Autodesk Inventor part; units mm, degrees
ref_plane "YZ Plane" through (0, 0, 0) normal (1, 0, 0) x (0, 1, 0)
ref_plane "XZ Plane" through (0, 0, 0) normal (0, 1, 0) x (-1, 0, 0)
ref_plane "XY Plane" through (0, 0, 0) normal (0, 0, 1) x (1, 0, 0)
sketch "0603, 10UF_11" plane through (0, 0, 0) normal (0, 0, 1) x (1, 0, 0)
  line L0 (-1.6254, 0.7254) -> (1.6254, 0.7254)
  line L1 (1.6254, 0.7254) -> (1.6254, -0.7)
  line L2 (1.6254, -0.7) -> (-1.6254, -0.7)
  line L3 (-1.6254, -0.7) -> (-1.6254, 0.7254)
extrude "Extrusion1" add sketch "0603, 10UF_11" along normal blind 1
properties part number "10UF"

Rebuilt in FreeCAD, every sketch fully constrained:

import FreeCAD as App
import Part
import Sketcher


def add_polygon(sketch, points):
    """Adds a closed chain of lines whose ends are joined by coincident constraints."""
    first, n = sketch.GeometryCount, len(points)
    for a, b in zip(points, points[1:] + points[:1]):
        sketch.addGeometry(Part.LineSegment(App.Vector(*a, 0), App.Vector(*b, 0)), False)
    for i in range(n):
        sketch.addConstraint(Sketcher.Constraint("Coincident", first + i, 2, first + (i + 1) % n, 1))

doc = App.newDocument("Part")
body = doc.addObject("PartDesign::Body", "Body")

sketch1 = body.newObject("Sketcher::SketchObject", "Sketch")
sketch1.AttachmentSupport = (doc.getObject("XY_Plane"), [""])
sketch1.MapMode = "FlatFace"
add_polygon(sketch1, [(1.6, 0.7), (-1.6, 0.7), (-1.6, -0.7), (1.6, -0.7)])
sketch1.addConstraint([
    Sketcher.Constraint("Horizontal", 0),
    Sketcher.Constraint("Vertical", 1),
    Sketcher.Constraint("Horizontal", 2),
    Sketcher.Constraint("Vertical", 3),
    Sketcher.Constraint("DistanceY", 1, 2, -1, 1, 0.7),
    Sketcher.Constraint("DistanceX", 0, 2, 0, 1, 3.2508),
    Sketcher.Constraint("DistanceY", 1, 2, 1, 1, 1.4254),
    Sketcher.Constraint("DistanceX", 0, 2, -1, 1, 1.6254),
])
pad1 = body.newObject("PartDesign::Pad", "Pad")
pad1.Profile = sketch1
pad1.Length = 1

doc.recompute()
